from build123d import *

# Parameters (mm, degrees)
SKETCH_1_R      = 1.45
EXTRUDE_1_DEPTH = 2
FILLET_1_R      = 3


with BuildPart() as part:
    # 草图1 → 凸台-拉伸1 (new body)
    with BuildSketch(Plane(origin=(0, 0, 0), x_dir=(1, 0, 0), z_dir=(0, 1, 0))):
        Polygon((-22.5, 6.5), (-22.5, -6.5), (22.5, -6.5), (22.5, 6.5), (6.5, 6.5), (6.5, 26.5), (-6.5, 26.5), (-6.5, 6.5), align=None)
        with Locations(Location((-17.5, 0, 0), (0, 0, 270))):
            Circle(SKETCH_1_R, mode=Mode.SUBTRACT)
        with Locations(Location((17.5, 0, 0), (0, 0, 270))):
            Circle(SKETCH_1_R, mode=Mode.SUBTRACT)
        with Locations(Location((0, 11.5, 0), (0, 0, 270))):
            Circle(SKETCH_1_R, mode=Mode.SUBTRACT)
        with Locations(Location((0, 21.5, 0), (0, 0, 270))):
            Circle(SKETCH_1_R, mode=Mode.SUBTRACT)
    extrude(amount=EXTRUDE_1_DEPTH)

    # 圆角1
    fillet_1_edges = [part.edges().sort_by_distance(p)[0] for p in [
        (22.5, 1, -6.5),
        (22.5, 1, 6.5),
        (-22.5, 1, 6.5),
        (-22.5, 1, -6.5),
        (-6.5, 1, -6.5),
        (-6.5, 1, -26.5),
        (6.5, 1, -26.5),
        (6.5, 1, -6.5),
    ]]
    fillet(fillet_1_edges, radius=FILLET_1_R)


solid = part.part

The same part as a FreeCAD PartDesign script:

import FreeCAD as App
import Part
import Sketcher

V = App.Vector


def edges_at(feature, points):
    """Names of the edges that pass closest to the given points."""
    edges = feature.Shape.Edges
    near = lambda p: min(range(len(edges)), key=lambda i: edges[i].distToShape(Part.Vertex(*p))[0])
    return sorted({f"Edge{near(p) + 1}" for p in points})

doc = App.newDocument("Part")
body = doc.addObject("PartDesign::Body", "Body")

sketch1 = body.newObject("Sketcher::SketchObject", "Sketch")
sketch1.AttachmentSupport = (doc.getObject("XZ_Plane"), [""])
sketch1.MapMode = "FlatFace"
sketch1.addGeometry([
    Part.LineSegment(V(-22.5, -6.5, 0), V(-22.5, 6.5, 0)),
    Part.LineSegment(V(-22.5, 6.5, 0), V(22.5, 6.5, 0)),
    Part.LineSegment(V(22.5, 6.5, 0), V(22.5, -6.5, 0)),
    Part.LineSegment(V(22.5, -6.5, 0), V(6.5, -6.5, 0)),
    Part.LineSegment(V(6.5, -6.5, 0), V(6.5, -26.5, 0)),
    Part.LineSegment(V(6.5, -26.5, 0), V(-6.5, -26.5, 0)),
    Part.LineSegment(V(-6.5, -26.5, 0), V(-6.5, -6.5, 0)),
    Part.LineSegment(V(-6.5, -6.5, 0), V(-22.5, -6.5, 0)),
    Part.Circle(V(-17.5, 0, 0), V(0, 0, 1), 1.4),
    Part.Circle(V(17.5, 0, 0), V(0, 0, 1), 1.4),
    Part.Circle(V(0, -11.5, 0), V(0, 0, 1), 1.4),
    Part.Circle(V(0, -21.5, 0), V(0, 0, 1), 1.4),
], False)
sketch1.addConstraint([
    Sketcher.Constraint("Coincident", 0, 2, 1, 1),
    Sketcher.Constraint("Coincident", 1, 2, 2, 1),
    Sketcher.Constraint("Coincident", 2, 2, 3, 1),
    Sketcher.Constraint("Coincident", 3, 2, 4, 1),
    Sketcher.Constraint("Coincident", 4, 2, 5, 1),
    Sketcher.Constraint("Coincident", 5, 2, 6, 1),
    Sketcher.Constraint("Coincident", 6, 2, 7, 1),
    Sketcher.Constraint("Coincident", 7, 2, 0, 1),
    Sketcher.Constraint("Vertical", 0),
    Sketcher.Constraint("Horizontal", 1),
    Sketcher.Constraint("Vertical", 2),
    Sketcher.Constraint("Horizontal", 3),
    Sketcher.Constraint("Vertical", 4),
    Sketcher.Constraint("Horizontal", 5),
    Sketcher.Constraint("Vertical", 6),
    Sketcher.Constraint("Horizontal", 7),
    Sketcher.Constraint("Equal", 8, 9),
    Sketcher.Constraint("Equal", 9, 10),
    Sketcher.Constraint("Equal", 10, 11),
    Sketcher.Constraint("Symmetric", 8, 3, 9, 3, -1, 1),
    Sketcher.Constraint("Symmetric", 0, 2, 2, 2, -1, 1),
    Sketcher.Constraint("Symmetric", 3, 2, 6, 2, -2),
    Sketcher.Constraint("PointOnObject", 8, 3, -1),
    Sketcher.Constraint("PointOnObject", 10, 3, -2),
    Sketcher.Constraint("PointOnObject", 11, 3, -2),
    Sketcher.Constraint("Equal", 5, 0),
    Sketcher.Constraint("Diameter", 8, 2.9),
    Sketcher.Constraint("DistanceX", 1, 1, 1, 2, 45.0),
    Sketcher.Constraint("DistanceX", 3, 2, 3, 1, 16.0),
    Sketcher.Constraint("DistanceY", 4, 2, 4, 1, 20.0),
    Sketcher.Constraint("DistanceX", 8, 3, 9, 3, 35.0),
    Sketcher.Constraint("DistanceY", 11, 3, 10, 3, 10.0),
    Sketcher.Constraint("DistanceY", 10, 3, 0, 2, 18.0),
])
pad1 = body.newObject("PartDesign::Pad", "Pad")
pad1.Profile = sketch1
pad1.Length = 2
pad1.Reversed = True
doc.recompute()

fillet = body.newObject("PartDesign::Fillet", "Fillet")
fillet.Base = (pad1, edges_at(pad1, [
    (22.5, 1, -6.5),
    (22.5, 1, 6.5),
    (-22.5, 1, 6.5),
    (-22.5, 1, -6.5),
    (-6.5, 1, -6.5),
    (-6.5, 1, -26.5),
    (6.5, 1, -26.5),
    (6.5, 1, -6.5),
]))
fillet.Radius = 3

doc.recompute()
